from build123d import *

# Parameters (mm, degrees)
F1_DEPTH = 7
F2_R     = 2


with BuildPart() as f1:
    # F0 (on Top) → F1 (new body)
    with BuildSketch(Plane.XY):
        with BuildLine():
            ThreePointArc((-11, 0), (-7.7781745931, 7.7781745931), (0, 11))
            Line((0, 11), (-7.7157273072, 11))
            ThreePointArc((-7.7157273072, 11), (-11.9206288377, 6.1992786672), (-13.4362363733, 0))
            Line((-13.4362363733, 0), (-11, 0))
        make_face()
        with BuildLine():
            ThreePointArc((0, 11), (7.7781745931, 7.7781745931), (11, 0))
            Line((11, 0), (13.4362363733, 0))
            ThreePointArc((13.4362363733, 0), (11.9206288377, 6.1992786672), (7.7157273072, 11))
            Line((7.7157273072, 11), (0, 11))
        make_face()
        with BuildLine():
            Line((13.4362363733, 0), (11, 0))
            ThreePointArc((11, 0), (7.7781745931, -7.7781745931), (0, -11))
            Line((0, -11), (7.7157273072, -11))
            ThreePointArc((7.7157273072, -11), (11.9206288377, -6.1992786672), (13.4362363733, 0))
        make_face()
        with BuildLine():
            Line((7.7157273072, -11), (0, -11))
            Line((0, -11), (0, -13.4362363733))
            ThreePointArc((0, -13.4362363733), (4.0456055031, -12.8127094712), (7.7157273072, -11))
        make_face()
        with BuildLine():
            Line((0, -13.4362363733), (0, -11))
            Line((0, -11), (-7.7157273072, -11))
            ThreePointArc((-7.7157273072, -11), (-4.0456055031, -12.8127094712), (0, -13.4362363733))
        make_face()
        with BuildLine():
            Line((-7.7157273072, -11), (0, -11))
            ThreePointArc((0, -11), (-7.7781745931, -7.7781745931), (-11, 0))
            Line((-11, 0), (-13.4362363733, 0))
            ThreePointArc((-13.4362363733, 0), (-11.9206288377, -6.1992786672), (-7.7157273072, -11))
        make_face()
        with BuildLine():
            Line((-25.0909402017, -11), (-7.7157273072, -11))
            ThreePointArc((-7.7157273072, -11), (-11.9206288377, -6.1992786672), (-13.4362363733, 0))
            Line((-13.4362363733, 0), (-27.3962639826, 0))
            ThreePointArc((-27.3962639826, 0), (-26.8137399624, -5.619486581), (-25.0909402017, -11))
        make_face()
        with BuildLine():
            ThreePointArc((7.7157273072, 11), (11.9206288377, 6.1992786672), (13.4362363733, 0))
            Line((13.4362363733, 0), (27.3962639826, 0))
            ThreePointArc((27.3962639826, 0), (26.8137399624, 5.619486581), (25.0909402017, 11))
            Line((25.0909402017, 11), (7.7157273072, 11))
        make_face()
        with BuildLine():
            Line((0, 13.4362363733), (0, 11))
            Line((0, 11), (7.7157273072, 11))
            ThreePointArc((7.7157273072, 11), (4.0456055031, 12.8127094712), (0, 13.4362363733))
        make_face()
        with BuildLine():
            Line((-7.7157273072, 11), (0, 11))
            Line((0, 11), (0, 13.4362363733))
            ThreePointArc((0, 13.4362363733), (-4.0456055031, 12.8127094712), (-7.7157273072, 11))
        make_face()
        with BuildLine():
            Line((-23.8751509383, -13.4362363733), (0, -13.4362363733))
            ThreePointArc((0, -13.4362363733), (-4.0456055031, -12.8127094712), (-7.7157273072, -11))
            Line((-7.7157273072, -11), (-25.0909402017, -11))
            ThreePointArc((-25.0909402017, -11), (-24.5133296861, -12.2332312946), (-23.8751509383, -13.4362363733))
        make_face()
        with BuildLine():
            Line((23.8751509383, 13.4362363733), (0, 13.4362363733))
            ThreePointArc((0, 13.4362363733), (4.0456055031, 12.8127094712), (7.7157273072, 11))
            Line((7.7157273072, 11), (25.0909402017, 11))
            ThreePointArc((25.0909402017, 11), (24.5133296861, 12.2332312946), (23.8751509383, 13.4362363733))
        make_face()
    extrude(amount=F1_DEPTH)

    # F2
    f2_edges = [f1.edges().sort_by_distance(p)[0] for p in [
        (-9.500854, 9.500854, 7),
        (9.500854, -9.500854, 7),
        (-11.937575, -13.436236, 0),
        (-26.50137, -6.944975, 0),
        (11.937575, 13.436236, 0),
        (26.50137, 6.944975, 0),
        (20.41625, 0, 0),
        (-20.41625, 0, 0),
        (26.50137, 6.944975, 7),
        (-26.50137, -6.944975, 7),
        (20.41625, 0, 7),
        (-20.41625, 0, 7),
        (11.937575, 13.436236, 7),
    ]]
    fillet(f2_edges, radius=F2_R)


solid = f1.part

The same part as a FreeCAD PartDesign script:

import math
import FreeCAD as App
import Part
import Sketcher

V = App.Vector


def edges_at(feature, points):
    """Names of the edges that pass closest to the given points."""
    edges = feature.Shape.Edges
    near = lambda p: min(range(len(edges)), key=lambda i: edges[i].distToShape(Part.Vertex(*p))[0])
    return sorted({f"Edge{near(p) + 1}" for p in points})

doc = App.newDocument("Part")
params = doc.addObject("Spreadsheet::Sheet", "Params")
for row, (alias, value) in enumerate([
    ("sketch1_radius", "11 mm"),
    ("pad1_length", "7 mm"),
    ("fillet_radius", "2 mm"),
], start=1):
    params.set(f"A{row}", alias)
    params.set(f"B{row}", "=" + value)
    params.setAlias(f"B{row}", alias)

body = doc.addObject("PartDesign::Body", "Body")

# Sketch on XY plane
sketch1 = doc.addObject("Sketcher::SketchObject", "Sketch")
body.addObject(sketch1)
sketch1.AttachmentSupport = (doc.XY_Plane, [""])
sketch1.MapMode = "FlatFace"
sketch1.addGeometry([
    Part.ArcOfCircle(Part.Circle(V(0, 0, 0), V(0, 0, 1), 13.4), math.radians(90), math.radians(125)),  # 0
    Part.ArcOfCircle(Part.Circle(V(0, 0, 0), V(0, 0, 1), 13.4), math.radians(125), math.radians(180)),  # 1
    Part.LineSegment(V(-13.4, 0, 0), V(-27.4, 0, 0)),  # 2
    Part.ArcOfCircle(Part.Circle(V(0, 0, 0), V(0, 0, 1), 27.4), math.radians(180), math.radians(204)),  # 3
    Part.ArcOfCircle(Part.Circle(V(0, 0, 0), V(0, 0, 1), 27.4), math.radians(-156.33), math.radians(-150.63)),  # 4
    Part.LineSegment(V(-23.9, -13.4, 0), V(0, -13.4, 0)),  # 5
    Part.ArcOfCircle(Part.Circle(V(0, 0, 0), V(0, 0, 1), 13.4), math.radians(-90), math.radians(-55)),  # 6
    Part.ArcOfCircle(Part.Circle(V(0, 0, 0), V(0, 0, 1), 13.4), math.radians(-55), math.radians(0)),  # 7
    Part.LineSegment(V(13.4, 0, 0), V(27.4, 0, 0)),  # 8
    Part.ArcOfCircle(Part.Circle(V(0, 0, 0), V(0, 0, 1), 27.4), math.radians(0), math.radians(24)),  # 9
    Part.ArcOfCircle(Part.Circle(V(0, 0, 0), V(0, 0, 1), 27.4), math.radians(23.67), math.radians(29.37)),  # 10
    Part.LineSegment(V(23.9, 13.4, 0), V(0, 13.4, 0)),  # 11
    Part.ArcOfCircle(Part.Circle(V(0, 0, 0), V(0, 0, 1), 11), math.radians(90), math.radians(180)),  # 12
    Part.ArcOfCircle(Part.Circle(V(0, 0, 0), V(0, 0, 1), 11), math.radians(0), math.radians(90)),  # 13
    Part.ArcOfCircle(Part.Circle(V(0, 0, 0), V(0, 0, 1), 11), math.radians(-90), math.radians(0)),  # 14
    Part.ArcOfCircle(Part.Circle(V(0, 0, 0), V(0, 0, 1), 11), math.radians(180), math.radians(270)),  # 15
], False)
sketch1.addConstraint([
    Sketcher.Constraint("Tangent", 0, 2, 1, 1),
    Sketcher.Constraint("Coincident", 1, 2, 2, 1),
    Sketcher.Constraint("Coincident", 2, 2, 3, 1),
    Sketcher.Constraint("Tangent", 3, 2, 4, 1),
    Sketcher.Constraint("Coincident", 4, 2, 5, 1),
    Sketcher.Constraint("Tangent", 5, 2, 6, 1),
    Sketcher.Constraint("Tangent", 6, 2, 7, 1),
    Sketcher.Constraint("Coincident", 7, 2, 8, 1),
    Sketcher.Constraint("Coincident", 8, 2, 9, 1),
    Sketcher.Constraint("Tangent", 9, 2, 10, 1),
    Sketcher.Constraint("Coincident", 10, 2, 11, 1),
    Sketcher.Constraint("Tangent", 11, 2, 0, 1),
    Sketcher.Constraint("Tangent", 12, 1, 13, 2),
    Sketcher.Constraint("Tangent", 13, 1, 14, 2),
    Sketcher.Constraint("Tangent", 14, 1, 15, 2),
    Sketcher.Constraint("Tangent", 15, 1, 12, 2),
    Sketcher.Constraint("Horizontal", 2),
    Sketcher.Constraint("Horizontal", 5),
    Sketcher.Constraint("Horizontal", 8),
    Sketcher.Constraint("Horizontal", 11),
    Sketcher.Constraint("Coincident", 0, 3, -1, 1),
    Sketcher.Constraint("Coincident", 3, 3, -1, 1),
    Sketcher.Constraint("Coincident", 6, 3, -1, 1),
    Sketcher.Constraint("Coincident", 9, 3, -1, 1),
    Sketcher.Constraint("Coincident", 12, 3, -1, 1),
    Sketcher.Constraint("Equal", 0, 1),
    Sketcher.Constraint("Equal", 3, 4),
    Sketcher.Constraint("Equal", 1, 6),
    Sketcher.Constraint("Equal", 6, 7),
    Sketcher.Constraint("Equal", 4, 9),
    Sketcher.Constraint("Equal", 9, 10),
    Sketcher.Constraint("Equal", 12, 13),
    Sketcher.Constraint("PointOnObject", 1, 2, -1),
    Sketcher.Constraint("PointOnObject", 7, 2, -1),
    Sketcher.Constraint("PointOnObject", 12, 1, -2),
    Sketcher.Constraint("PointOnObject", 13, 1, -1),
    Sketcher.Constraint("PointOnObject", 14, 1, -2),
    Sketcher.Constraint("PointOnObject", 15, 1, -1),
    Sketcher.Constraint("Horizontal", 3, 2, 6, 2),
    Sketcher.Constraint("Horizontal", 0, 2, 9, 2),
    Sketcher.Constraint("Horizontal", 9, 2, 12, 1),
    Sketcher.Constraint("Horizontal", 6, 2, 14, 1),
    Sketcher.Constraint("Radius", 12, 11.0),
    Sketcher.Constraint("Radius", 0, 13.436236),
    Sketcher.Constraint("Radius", 3, 27.396264),
])
sketch1.setExpression("Constraints[42]", "Params.sketch1_radius")
pad1 = doc.addObject("PartDesign::Pad", "Pad")
body.addObject(pad1)
pad1.Profile = sketch1
pad1.setExpression("Length", "Params.pad1_length")
doc.recompute()

fillet = doc.addObject("PartDesign::Fillet", "Fillet")
body.addObject(fillet)
fillet.Base = (pad1, edges_at(pad1, [
    (-11.921, 6.199, 7),
    (11.921, -6.199, 7),
    (-11.938, -13.436, 0),
    (-26.814, -5.619, 0),
    (11.938, 13.436, 0),
    (26.814, 5.619, 0),
    (20.416, 0, 0),
    (-20.416, 0, 0),
    (26.814, 5.619, 7),
    (-26.814, -5.619, 7),
    (20.416, 0, 7),
    (-20.416, 0, 7),
    (11.938, 13.436, 7),
]))
fillet.setExpression("Radius", "Params.fillet_radius")

doc.recompute()
